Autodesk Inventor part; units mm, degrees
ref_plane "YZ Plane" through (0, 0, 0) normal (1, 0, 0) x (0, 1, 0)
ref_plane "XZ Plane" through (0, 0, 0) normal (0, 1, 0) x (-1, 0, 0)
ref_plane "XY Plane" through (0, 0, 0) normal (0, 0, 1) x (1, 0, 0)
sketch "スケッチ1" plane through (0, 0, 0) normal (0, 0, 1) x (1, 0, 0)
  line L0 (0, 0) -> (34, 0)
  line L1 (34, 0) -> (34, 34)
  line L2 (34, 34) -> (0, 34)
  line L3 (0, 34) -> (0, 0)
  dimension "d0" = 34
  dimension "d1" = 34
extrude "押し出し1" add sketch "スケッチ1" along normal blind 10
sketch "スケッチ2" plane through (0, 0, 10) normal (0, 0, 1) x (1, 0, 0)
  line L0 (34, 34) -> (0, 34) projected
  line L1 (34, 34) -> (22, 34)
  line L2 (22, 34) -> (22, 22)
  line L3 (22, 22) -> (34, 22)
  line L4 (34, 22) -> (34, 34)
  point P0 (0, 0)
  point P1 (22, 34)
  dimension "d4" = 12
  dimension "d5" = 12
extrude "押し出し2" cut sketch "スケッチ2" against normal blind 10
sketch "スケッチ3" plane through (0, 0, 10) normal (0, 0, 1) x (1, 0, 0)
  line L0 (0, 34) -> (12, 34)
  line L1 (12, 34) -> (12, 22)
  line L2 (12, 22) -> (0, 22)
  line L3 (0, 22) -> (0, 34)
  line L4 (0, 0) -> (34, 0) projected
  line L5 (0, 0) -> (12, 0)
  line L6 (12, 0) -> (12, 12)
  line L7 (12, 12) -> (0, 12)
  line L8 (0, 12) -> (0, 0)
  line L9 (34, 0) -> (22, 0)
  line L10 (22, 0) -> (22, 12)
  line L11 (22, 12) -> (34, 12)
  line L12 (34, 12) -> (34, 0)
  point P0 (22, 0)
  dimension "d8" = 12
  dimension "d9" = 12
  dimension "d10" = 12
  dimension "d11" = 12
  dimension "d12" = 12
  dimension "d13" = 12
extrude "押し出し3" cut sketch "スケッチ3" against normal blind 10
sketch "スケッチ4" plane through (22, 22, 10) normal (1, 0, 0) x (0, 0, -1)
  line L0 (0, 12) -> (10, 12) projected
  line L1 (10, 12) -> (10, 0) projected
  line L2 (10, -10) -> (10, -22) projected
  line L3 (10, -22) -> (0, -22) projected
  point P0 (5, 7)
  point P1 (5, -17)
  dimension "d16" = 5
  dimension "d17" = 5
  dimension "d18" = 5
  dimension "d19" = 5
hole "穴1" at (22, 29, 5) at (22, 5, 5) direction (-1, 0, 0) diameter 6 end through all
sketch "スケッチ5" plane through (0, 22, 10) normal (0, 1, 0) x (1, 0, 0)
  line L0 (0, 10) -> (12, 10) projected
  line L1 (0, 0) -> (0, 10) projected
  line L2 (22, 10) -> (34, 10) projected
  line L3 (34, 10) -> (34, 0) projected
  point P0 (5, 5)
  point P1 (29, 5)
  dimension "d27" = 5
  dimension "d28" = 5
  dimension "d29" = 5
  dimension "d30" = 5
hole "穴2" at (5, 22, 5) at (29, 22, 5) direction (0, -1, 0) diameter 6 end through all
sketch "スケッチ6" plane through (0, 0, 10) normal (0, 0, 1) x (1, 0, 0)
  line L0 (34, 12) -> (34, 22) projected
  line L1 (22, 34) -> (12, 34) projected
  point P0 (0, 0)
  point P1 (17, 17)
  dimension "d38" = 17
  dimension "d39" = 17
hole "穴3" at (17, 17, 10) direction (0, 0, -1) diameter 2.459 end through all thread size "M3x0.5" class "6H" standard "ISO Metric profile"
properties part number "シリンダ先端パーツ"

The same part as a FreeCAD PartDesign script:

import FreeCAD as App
import Part
import Sketcher
from FreeCAD import Vector
Q = App.Units.Quantity


def add_polygon(sketch, points):
    """Adds a closed chain of lines whose ends are joined by coincident constraints."""
    first, n = sketch.GeometryCount, len(points)
    for a, b in zip(points, points[1:] + points[:1]):
        sketch.addGeometry(Part.LineSegment(App.Vector(*a, 0), App.Vector(*b, 0)), False)
    for i in range(n):
        sketch.addConstraint(Sketcher.Constraint("Coincident", first + i, 2, first + (i + 1) % n, 1))

doc = App.newDocument("Part")
params = doc.addObject("Spreadsheet::Sheet", "Params")
for row, (alias, value) in enumerate([
    ("sketch1_width", "34 mm"),
    ("pad1_length", "10 mm"),
    ("sketch2_width", "12 mm"),
    ("pocket1_length", "10 mm"),
    ("sketch3_width", "12 mm"),
    ("pocket2_length", "10 mm"),
    ("sketch4_diameter", "6 mm"),
    ("hole_diameter", "6 mm"),
    ("sketch5_diameter", "6 mm"),
    ("hole2_diameter", "6 mm"),
    ("hole3_diameter", "2.459 mm"),
], start=1):
    params.set(f"A{row}", alias)
    params.set(f"B{row}", "=" + value)
    params.setAlias(f"B{row}", alias)

body = doc.addObject("PartDesign::Body", "Body")

# Sketch on XY plane
sketch1 = body.newObject("Sketcher::SketchObject", "Sketch")
sketch1.AttachmentSupport = (doc.getObject("XY_Plane"), [""])
sketch1.MapMode = "FlatFace"
add_polygon(sketch1, [(0, 34), (0, 0), (34, 0), (34, 34)])  # lines 0-3
sketch1.addConstraint([
    Sketcher.Constraint("Vertical", 0),
    Sketcher.Constraint("Horizontal", 1),
    Sketcher.Constraint("Vertical", 2),
    Sketcher.Constraint("Horizontal", 3),
    Sketcher.Constraint("Coincident", 0, 2, -1, 1),
    Sketcher.Constraint("Equal", 3, 0),
    Sketcher.Constraint("DistanceX", 1, 1, 1, 2, Q("34 mm")),
])
sketch1.setExpression("Constraints[10]", "Params.sketch1_width")
pad1 = body.newObject("PartDesign::Pad", "Pad")
pad1.Profile = sketch1
pad1.setExpression("Length", "Params.pad1_length")

# Sketch on XY plane
sketch2 = body.newObject("Sketcher::SketchObject", "Sketch001")
sketch2.AttachmentSupport = (doc.getObject("XY_Plane"), [""])
sketch2.MapMode = "FlatFace"
sketch2.AttachmentOffset = App.Placement(Vector(0, 0, 10), App.Rotation())
add_polygon(sketch2, [(34, 22), (34, 34), (22, 34), (22, 22)])  # lines 0-3
sketch2.addConstraint([
    Sketcher.Constraint("Vertical", 0),
    Sketcher.Constraint("Horizontal", 1),
    Sketcher.Constraint("Vertical", 2),
    Sketcher.Constraint("Horizontal", 3),
    Sketcher.Constraint("Equal", 3, 0),
    Sketcher.Constraint("DistanceX", 1, 2, 1, 1, Q("12 mm")),
    Sketcher.Constraint("DistanceX", -1, 1, 0, 2, Q("34 mm")),
    Sketcher.Constraint("DistanceY", -1, 1, 0, 2, Q("34 mm")),
])
sketch2.setExpression("Constraints[9]", "Params.sketch2_width")
pocket1 = body.newObject("PartDesign::Pocket", "Pocket")
pocket1.Profile = sketch2
pocket1.setExpression("Length", "Params.pocket1_length")

# Sketch on XY plane
sketch3 = body.newObject("Sketcher::SketchObject", "Sketch002")
sketch3.AttachmentSupport = (doc.getObject("XY_Plane"), [""])
sketch3.MapMode = "FlatFace"
sketch3.AttachmentOffset = App.Placement(Vector(0, 0, 10), App.Rotation())
add_polygon(sketch3, [(12, 34), (0, 34), (0, 22), (12, 22)])  # lines 0-3
add_polygon(sketch3, [(0, 12), (0, 0), (12, 0), (12, 12)])  # lines 4-7
add_polygon(sketch3, [(22, 12), (22, 0), (34, 0), (34, 12)])  # lines 8-11
sketch3.addConstraint([
    Sketcher.Constraint("Horizontal", 0),
    Sketcher.Constraint("Vertical", 1),
    Sketcher.Constraint("Horizontal", 2),
    Sketcher.Constraint("Vertical", 3),
    Sketcher.Constraint("Vertical", 4),
    Sketcher.Constraint("Horizontal", 5),
    Sketcher.Constraint("Vertical", 6),
    Sketcher.Constraint("Horizontal", 7),
    Sketcher.Constraint("Vertical", 8),
    Sketcher.Constraint("Horizontal", 9),
    Sketcher.Constraint("Vertical", 10),
    Sketcher.Constraint("Horizontal", 11),
    Sketcher.Constraint("Coincident", 4, 2, -1, 1),
    Sketcher.Constraint("PointOnObject", 0, 2, -2),
    Sketcher.Constraint("PointOnObject", 8, 2, -1),
    Sketcher.Constraint("Horizontal", 7, 2, 10, 2),
    Sketcher.Constraint("Vertical", 3, 2, 5, 2),
    Sketcher.Constraint("Equal", 7, 9),
    Sketcher.Constraint("Equal", 11, 1),
    Sketcher.Constraint("Equal", 3, 4),
    Sketcher.Constraint("DistanceX", 0, 2, 0, 1, Q("12 mm")),
    Sketcher.Constraint("DistanceY", -1, 1, 0, 2, Q("34 mm")),
    Sketcher.Constraint("DistanceX", -1, 1, 8, 2, Q("22 mm")),
])
sketch3.setExpression("Constraints[32]", "Params.sketch3_width")
pocket2 = body.newObject("PartDesign::Pocket", "Pocket001")
pocket2.Profile = sketch3
pocket2.setExpression("Length", "Params.pocket2_length")

# Sketch on YZ plane
sketch4 = body.newObject("Sketcher::SketchObject", "Sketch003")
sketch4.AttachmentSupport = (doc.getObject("YZ_Plane"), [""])
sketch4.MapMode = "FlatFace"
sketch4.AttachmentOffset = App.Placement(Vector(0, 0, 22), App.Rotation())
sketch4.addGeometry([
    Part.Circle(Vector(29, 5, 0), Vector(0, 0, 1), 3),
    Part.Circle(Vector(5, 5, 0), Vector(0, 0, 1), 3),
], False)
sketch4.addConstraint([
    Sketcher.Constraint("Equal", 0, 1),
    Sketcher.Constraint("Horizontal", 0, 3, 1, 3),
    Sketcher.Constraint("Diameter", 0, Q("6 mm")),
    Sketcher.Constraint("DistanceX", -1, 1, 0, 3, Q("29 mm")),
    Sketcher.Constraint("DistanceY", -1, 1, 0, 3, Q("5 mm")),
    Sketcher.Constraint("DistanceX", -1, 1, 1, 3, Q("5 mm")),
])
sketch4.setExpression("Constraints[2]", "Params.sketch4_diameter")
doc.recompute()
hole = body.newObject("PartDesign::Hole", "Hole")
hole.Profile = sketch4
hole.ThreadType = "None"
hole.setExpression("Diameter", "Params.hole_diameter")
hole.DepthType = "ThroughAll"

# Sketch on XZ plane
sketch5 = body.newObject("Sketcher::SketchObject", "Sketch004")
sketch5.AttachmentSupport = (doc.getObject("XZ_Plane"), [""])
sketch5.MapMode = "FlatFace"
sketch5.AttachmentOffset = App.Placement(Vector(0, 0, -22), App.Rotation())
sketch5.addGeometry([
    Part.Circle(Vector(5, 5, 0), Vector(0, 0, 1), 3),
    Part.Circle(Vector(29, 5, 0), Vector(0, 0, 1), 3),
], False)
sketch5.addConstraint([
    Sketcher.Constraint("Equal", 0, 1),
    Sketcher.Constraint("Horizontal", 0, 3, 1, 3),
    Sketcher.Constraint("Diameter", 0, Q("6 mm")),
    Sketcher.Constraint("DistanceX", -1, 1, 0, 3, Q("5 mm")),
    Sketcher.Constraint("DistanceY", -1, 1, 0, 3, Q("5 mm")),
    Sketcher.Constraint("DistanceX", -1, 1, 1, 3, Q("29 mm")),
])
sketch5.setExpression("Constraints[2]", "Params.sketch5_diameter")
doc.recompute()
hole2 = body.newObject("PartDesign::Hole", "Hole001")
hole2.Profile = sketch5
hole2.ThreadType = "None"
hole2.setExpression("Diameter", "Params.hole2_diameter")
hole2.DepthType = "ThroughAll"
hole2.Reversed = True

# Sketch on XY plane
sketch6 = body.newObject("Sketcher::SketchObject", "Sketch005")
sketch6.AttachmentSupport = (doc.getObject("XY_Plane"), [""])
sketch6.MapMode = "FlatFace"
sketch6.AttachmentOffset = App.Placement(Vector(0, 0, 10), App.Rotation())
sketch6.addGeometry(Part.Circle(Vector(17, 17, 0), Vector(0, 0, 1), 1.2), False)
sketch6.addConstraint([
    Sketcher.Constraint("Diameter", 0, Q("2.459 mm")),
    Sketcher.Constraint("DistanceX", -1, 1, 0, 3, Q("17 mm")),
    Sketcher.Constraint("DistanceY", -1, 1, 0, 3, Q("17 mm")),
])
doc.recompute()
hole3 = body.newObject("PartDesign::Hole", "Hole002")
hole3.Profile = sketch6
hole3.ThreadType = "None"
hole3.setExpression("Diameter", "Params.hole3_diameter")
hole3.DepthType = "ThroughAll"

doc.recompute()
